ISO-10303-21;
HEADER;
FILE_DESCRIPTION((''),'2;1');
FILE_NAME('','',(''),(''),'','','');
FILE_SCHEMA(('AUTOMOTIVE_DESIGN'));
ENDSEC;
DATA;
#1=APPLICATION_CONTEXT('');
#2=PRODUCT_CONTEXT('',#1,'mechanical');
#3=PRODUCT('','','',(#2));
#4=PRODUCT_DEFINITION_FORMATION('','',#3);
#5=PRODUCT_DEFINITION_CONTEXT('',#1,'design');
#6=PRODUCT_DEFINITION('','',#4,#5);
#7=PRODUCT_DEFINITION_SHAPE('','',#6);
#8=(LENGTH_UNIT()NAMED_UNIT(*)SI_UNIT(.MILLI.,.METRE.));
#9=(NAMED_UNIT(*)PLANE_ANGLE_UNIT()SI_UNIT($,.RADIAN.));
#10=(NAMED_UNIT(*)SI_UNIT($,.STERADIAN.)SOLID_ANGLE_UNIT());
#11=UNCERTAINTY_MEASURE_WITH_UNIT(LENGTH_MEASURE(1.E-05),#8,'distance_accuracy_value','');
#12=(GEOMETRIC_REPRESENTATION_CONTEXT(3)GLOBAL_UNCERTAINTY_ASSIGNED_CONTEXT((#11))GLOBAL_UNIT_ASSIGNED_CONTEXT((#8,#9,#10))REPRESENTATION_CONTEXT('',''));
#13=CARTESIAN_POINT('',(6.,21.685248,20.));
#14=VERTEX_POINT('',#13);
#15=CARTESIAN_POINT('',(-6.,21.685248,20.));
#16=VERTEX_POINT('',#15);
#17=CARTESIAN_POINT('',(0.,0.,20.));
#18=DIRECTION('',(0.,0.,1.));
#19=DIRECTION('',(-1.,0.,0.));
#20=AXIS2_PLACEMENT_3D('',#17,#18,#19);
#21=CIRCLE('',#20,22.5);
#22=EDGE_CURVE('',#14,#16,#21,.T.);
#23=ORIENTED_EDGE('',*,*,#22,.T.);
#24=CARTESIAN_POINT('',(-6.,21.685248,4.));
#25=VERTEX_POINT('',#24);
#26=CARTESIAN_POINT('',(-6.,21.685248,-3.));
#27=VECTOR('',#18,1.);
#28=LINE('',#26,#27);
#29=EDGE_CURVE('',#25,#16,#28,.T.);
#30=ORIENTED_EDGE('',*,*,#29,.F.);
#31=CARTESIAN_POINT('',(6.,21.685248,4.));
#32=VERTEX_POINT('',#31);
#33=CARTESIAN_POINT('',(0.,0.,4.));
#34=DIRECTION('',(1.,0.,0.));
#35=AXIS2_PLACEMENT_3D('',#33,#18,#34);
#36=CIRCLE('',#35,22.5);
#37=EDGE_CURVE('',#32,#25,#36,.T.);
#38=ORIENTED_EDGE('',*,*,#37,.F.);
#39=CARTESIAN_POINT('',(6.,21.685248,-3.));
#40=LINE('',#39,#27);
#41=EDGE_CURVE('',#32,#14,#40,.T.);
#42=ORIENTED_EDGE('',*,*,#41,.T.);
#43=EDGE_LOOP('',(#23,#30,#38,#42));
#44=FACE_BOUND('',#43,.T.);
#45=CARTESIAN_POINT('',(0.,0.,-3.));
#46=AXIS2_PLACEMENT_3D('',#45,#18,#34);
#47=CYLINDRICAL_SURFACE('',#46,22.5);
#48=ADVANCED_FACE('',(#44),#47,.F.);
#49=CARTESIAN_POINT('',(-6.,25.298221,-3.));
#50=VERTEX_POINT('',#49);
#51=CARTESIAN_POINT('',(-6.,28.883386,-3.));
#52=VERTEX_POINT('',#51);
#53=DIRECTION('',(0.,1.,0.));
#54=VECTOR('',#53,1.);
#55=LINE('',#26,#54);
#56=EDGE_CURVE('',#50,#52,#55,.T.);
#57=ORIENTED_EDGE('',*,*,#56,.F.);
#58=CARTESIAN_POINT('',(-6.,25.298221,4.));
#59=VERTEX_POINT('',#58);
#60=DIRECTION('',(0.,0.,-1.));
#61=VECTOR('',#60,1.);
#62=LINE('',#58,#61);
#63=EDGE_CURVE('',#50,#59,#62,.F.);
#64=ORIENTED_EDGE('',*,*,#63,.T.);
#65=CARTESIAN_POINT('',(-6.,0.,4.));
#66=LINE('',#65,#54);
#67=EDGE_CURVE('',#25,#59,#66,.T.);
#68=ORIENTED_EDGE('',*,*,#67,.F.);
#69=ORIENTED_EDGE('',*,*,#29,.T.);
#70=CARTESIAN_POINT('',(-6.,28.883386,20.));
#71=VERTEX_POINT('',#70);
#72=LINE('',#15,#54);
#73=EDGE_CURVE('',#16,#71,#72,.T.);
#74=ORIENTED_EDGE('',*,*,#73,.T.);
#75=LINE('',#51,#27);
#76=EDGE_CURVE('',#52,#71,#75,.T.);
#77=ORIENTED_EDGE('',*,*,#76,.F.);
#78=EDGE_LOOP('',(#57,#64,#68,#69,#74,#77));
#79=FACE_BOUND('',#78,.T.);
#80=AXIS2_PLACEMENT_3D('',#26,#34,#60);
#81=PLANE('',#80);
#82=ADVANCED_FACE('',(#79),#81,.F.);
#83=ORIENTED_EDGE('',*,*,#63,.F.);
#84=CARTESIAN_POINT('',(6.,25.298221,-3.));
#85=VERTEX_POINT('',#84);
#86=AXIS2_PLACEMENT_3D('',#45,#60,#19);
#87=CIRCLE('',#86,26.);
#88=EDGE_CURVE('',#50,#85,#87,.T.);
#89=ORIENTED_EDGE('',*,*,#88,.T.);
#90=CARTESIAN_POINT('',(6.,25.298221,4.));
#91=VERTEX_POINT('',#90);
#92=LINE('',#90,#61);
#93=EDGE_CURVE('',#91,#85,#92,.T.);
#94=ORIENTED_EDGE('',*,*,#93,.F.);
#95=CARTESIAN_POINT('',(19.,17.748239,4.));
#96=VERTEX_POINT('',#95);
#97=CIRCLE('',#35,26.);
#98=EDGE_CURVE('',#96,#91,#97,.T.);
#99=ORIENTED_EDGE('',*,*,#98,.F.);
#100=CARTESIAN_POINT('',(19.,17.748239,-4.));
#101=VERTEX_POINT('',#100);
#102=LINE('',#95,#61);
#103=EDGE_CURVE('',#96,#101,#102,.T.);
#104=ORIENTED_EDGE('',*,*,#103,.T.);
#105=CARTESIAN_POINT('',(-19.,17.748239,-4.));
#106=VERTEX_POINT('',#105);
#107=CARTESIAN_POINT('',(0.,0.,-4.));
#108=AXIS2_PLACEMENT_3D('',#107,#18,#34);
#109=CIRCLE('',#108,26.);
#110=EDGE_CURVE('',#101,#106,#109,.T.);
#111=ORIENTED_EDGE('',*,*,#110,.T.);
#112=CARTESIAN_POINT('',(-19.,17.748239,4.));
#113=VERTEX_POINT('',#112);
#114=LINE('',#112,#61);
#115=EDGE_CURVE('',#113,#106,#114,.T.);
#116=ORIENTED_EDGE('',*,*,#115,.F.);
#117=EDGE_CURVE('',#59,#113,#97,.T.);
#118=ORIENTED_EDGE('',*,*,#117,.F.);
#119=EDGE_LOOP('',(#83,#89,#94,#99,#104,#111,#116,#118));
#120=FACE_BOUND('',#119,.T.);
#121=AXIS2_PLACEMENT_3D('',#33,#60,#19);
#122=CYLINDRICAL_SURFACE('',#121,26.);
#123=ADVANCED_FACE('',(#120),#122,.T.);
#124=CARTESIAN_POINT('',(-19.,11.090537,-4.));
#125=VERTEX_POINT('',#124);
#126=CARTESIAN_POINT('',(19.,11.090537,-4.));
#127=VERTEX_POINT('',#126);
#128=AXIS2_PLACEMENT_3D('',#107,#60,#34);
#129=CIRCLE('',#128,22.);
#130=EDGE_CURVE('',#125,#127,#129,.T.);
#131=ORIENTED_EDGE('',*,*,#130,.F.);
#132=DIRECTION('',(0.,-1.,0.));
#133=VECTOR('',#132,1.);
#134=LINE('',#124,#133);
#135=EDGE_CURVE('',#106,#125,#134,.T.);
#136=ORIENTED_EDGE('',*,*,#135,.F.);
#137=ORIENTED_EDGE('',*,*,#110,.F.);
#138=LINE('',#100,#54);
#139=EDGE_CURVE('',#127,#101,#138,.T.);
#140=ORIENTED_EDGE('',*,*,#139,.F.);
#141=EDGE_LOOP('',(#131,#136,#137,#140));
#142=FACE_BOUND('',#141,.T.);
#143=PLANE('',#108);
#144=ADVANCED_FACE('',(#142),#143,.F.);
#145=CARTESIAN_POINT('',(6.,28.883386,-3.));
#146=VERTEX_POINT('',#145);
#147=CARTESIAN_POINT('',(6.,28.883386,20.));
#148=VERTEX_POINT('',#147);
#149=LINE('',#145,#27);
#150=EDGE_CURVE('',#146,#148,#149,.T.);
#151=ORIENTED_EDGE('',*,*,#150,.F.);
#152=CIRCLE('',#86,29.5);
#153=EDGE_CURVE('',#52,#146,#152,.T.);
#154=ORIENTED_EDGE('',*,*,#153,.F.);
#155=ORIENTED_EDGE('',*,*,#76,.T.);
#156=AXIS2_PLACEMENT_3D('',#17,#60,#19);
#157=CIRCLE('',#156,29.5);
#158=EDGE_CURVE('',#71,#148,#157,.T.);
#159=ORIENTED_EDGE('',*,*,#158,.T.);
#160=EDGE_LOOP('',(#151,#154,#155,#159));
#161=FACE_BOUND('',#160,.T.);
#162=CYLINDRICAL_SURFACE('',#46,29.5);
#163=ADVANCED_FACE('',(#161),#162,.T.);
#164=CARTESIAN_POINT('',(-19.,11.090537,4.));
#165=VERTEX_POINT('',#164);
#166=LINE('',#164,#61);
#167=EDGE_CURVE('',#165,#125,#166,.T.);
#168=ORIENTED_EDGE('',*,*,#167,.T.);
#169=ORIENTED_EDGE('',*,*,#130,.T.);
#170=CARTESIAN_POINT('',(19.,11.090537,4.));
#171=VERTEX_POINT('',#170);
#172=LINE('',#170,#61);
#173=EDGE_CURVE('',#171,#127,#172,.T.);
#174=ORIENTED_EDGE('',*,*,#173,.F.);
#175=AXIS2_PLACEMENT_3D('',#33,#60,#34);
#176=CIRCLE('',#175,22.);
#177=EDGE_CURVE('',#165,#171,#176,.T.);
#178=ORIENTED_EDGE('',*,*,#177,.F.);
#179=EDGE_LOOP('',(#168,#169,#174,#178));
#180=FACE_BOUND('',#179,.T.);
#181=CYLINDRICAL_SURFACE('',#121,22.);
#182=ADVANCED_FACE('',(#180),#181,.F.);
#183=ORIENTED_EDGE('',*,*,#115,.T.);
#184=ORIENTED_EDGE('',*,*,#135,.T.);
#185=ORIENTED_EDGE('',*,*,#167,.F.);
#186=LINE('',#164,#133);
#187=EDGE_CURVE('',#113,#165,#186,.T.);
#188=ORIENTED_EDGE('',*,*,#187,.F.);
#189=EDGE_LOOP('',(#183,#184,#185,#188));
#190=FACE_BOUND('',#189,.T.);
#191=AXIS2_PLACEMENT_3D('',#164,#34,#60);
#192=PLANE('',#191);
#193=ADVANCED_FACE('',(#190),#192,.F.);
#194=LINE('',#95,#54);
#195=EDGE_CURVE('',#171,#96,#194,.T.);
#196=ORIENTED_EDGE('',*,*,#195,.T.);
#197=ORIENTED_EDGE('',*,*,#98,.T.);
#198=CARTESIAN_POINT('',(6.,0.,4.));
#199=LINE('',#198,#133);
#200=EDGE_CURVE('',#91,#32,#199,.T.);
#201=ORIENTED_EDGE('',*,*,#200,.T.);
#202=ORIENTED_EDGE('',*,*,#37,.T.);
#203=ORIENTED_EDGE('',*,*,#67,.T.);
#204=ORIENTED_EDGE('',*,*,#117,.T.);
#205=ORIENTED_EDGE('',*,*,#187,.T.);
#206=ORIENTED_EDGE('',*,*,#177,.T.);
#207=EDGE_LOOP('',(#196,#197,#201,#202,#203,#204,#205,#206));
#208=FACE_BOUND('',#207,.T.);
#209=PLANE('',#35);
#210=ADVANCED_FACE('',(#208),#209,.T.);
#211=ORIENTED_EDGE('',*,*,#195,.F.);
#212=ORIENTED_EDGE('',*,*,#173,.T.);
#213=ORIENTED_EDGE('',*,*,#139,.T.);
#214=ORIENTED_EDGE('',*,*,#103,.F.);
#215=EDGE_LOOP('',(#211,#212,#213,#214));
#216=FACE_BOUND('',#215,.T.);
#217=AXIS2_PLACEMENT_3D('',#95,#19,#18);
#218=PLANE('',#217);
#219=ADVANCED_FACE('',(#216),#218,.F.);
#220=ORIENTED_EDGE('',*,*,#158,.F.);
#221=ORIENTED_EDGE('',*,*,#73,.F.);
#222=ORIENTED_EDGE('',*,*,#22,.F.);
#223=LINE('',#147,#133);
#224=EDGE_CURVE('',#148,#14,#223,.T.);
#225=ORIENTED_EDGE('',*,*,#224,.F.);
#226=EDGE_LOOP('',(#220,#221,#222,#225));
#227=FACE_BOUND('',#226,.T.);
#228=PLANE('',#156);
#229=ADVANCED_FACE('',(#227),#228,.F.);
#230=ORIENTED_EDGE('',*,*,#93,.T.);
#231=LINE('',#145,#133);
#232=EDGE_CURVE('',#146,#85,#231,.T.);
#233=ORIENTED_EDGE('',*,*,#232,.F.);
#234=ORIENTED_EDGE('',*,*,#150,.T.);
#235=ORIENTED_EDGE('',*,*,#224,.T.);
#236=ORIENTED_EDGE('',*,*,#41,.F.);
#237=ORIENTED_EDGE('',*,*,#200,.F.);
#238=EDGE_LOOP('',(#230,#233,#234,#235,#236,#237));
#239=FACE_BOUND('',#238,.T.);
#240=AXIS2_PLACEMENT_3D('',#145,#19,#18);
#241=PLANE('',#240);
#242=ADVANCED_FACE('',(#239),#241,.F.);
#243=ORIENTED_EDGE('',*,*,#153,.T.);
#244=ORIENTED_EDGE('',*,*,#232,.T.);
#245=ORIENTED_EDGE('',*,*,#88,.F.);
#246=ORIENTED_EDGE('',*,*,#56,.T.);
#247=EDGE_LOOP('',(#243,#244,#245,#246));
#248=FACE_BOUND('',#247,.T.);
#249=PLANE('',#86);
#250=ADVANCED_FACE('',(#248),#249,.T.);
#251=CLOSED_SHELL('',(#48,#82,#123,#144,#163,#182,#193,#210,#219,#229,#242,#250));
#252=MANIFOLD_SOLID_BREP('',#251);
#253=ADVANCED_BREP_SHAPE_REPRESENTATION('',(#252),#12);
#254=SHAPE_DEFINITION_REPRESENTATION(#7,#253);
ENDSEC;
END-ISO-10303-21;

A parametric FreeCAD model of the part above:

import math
import FreeCAD as App
import Part
import Sketcher
Q = App.Units.Quantity

doc = App.newDocument("Part")
params = doc.addObject("Spreadsheet::Sheet", "Params")
for row, (alias, value) in enumerate([
    ("sketch1_radius", "22 mm"),
    ("sketch1_radius2", "26 mm"),
    ("pad1_length", "8 mm"),
    ("sketch2_radius", "29.5 mm"),
    ("sketch2_radius2", "22.5 mm"),
    ("pad2_length", "7 mm"),
    ("pad2_length2", "16 mm"),
], start=1):
    params.set(f"A{row}", alias)
    params.set(f"B{row}", "=" + value)
    params.setAlias(f"B{row}", alias)

body = doc.addObject("PartDesign::Body", "Body")

# Sketch on XY plane
sketch1 = body.newObject("Sketcher::SketchObject", "Sketch")
sketch1.AttachmentSupport = (doc.getObject("XY_Plane"), [""])
sketch1.MapMode = "FlatFace"
sketch1.addGeometry(Part.LineSegment(App.Vector(-19, 18, 0), App.Vector(-19, 11, 0)), False)
sketch1.addGeometry(Part.ArcOfCircle(Part.Circle(App.Vector(0, 0, 0), App.Vector(0, 0, 1), 22), math.radians(30), math.radians(150)), False)
sketch1.addGeometry(Part.LineSegment(App.Vector(19, 11, 0), App.Vector(19, 18, 0)), False)
sketch1.addGeometry(Part.ArcOfCircle(Part.Circle(App.Vector(0, 0, 0), App.Vector(0, 0, 1), 26), math.radians(43), math.radians(137)), False)
sketch1.addConstraint(Sketcher.Constraint("Coincident", 0, 2, 1, 2))
sketch1.addConstraint(Sketcher.Constraint("Coincident", 1, 1, 2, 1))
sketch1.addConstraint(Sketcher.Constraint("Coincident", 2, 2, 3, 1))
sketch1.addConstraint(Sketcher.Constraint("Coincident", 3, 2, 0, 1))
sketch1.addConstraint(Sketcher.Constraint("Vertical", 0))
sketch1.addConstraint(Sketcher.Constraint("Vertical", 2))
sketch1.addConstraint(Sketcher.Constraint("Coincident", 1, 3, -1, 1))
sketch1.addConstraint(Sketcher.Constraint("Coincident", 3, 3, -1, 1))
sketch1.addConstraint(Sketcher.Constraint("Horizontal", 0, 2, 1, 1))
sketch1.addConstraint(Sketcher.Constraint("Radius", 1, Q("22 mm")))
sketch1.addConstraint(Sketcher.Constraint("Radius", 3, Q("26 mm")))
sketch1.addConstraint(Sketcher.Constraint("DistanceX", 0, 2, -1, 1, Q("19 mm")))
sketch1.setExpression("Constraints[9]", "Params.sketch1_radius")
sketch1.setExpression("Constraints[10]", "Params.sketch1_radius2")
pad1 = body.newObject("PartDesign::Pad", "Pad")
pad1.Profile = sketch1
pad1.setExpression("Length", "Params.pad1_length")
pad1.Midplane = True

# Sketch on XY plane
sketch2 = body.newObject("Sketcher::SketchObject", "Sketch001")
sketch2.AttachmentSupport = (doc.getObject("XY_Plane"), [""])
sketch2.MapMode = "FlatFace"
sketch2.AttachmentOffset = App.Placement(App.Vector(0, 0, 4), App.Rotation())
sketch2.addGeometry(Part.LineSegment(App.Vector(-6, 22, 0), App.Vector(-6, 29, 0)), False)
sketch2.addGeometry(Part.ArcOfCircle(Part.Circle(App.Vector(0, 0, 0), App.Vector(0, 0, 1), 29), math.radians(78), math.radians(102)), False)
sketch2.addGeometry(Part.LineSegment(App.Vector(6, 29, 0), App.Vector(6, 22, 0)), False)
sketch2.addGeometry(Part.ArcOfCircle(Part.Circle(App.Vector(0, 0, 0), App.Vector(0, 0, 1), 22), math.radians(75), math.radians(105)), False)
sketch2.addConstraint(Sketcher.Constraint("Coincident", 0, 2, 1, 2))
sketch2.addConstraint(Sketcher.Constraint("Coincident", 1, 1, 2, 1))
sketch2.addConstraint(Sketcher.Constraint("Coincident", 2, 2, 3, 1))
sketch2.addConstraint(Sketcher.Constraint("Coincident", 3, 2, 0, 1))
sketch2.addConstraint(Sketcher.Constraint("Vertical", 0))
sketch2.addConstraint(Sketcher.Constraint("Vertical", 2))
sketch2.addConstraint(Sketcher.Constraint("Coincident", 1, 3, -1, 1))
sketch2.addConstraint(Sketcher.Constraint("Coincident", 3, 3, -1, 1))
sketch2.addConstraint(Sketcher.Constraint("Horizontal", 0, 2, 1, 1))
sketch2.addConstraint(Sketcher.Constraint("Radius", 1, Q("29.5 mm")))
sketch2.addConstraint(Sketcher.Constraint("Radius", 3, Q("22.5 mm")))
sketch2.addConstraint(Sketcher.Constraint("DistanceX", 0, 2, -1, 1, Q("6 mm")))
sketch2.setExpression("Constraints[9]", "Params.sketch2_radius")
sketch2.setExpression("Constraints[10]", "Params.sketch2_radius2")
pad2 = body.newObject("PartDesign::Pad", "Pad001")
pad2.Profile = sketch2
pad2.Type = "TwoLengths"
pad2.setExpression("Length", "Params.pad2_length")
pad2.setExpression("Length2", "Params.pad2_length2")
pad2.Reversed = True

doc.recompute()
